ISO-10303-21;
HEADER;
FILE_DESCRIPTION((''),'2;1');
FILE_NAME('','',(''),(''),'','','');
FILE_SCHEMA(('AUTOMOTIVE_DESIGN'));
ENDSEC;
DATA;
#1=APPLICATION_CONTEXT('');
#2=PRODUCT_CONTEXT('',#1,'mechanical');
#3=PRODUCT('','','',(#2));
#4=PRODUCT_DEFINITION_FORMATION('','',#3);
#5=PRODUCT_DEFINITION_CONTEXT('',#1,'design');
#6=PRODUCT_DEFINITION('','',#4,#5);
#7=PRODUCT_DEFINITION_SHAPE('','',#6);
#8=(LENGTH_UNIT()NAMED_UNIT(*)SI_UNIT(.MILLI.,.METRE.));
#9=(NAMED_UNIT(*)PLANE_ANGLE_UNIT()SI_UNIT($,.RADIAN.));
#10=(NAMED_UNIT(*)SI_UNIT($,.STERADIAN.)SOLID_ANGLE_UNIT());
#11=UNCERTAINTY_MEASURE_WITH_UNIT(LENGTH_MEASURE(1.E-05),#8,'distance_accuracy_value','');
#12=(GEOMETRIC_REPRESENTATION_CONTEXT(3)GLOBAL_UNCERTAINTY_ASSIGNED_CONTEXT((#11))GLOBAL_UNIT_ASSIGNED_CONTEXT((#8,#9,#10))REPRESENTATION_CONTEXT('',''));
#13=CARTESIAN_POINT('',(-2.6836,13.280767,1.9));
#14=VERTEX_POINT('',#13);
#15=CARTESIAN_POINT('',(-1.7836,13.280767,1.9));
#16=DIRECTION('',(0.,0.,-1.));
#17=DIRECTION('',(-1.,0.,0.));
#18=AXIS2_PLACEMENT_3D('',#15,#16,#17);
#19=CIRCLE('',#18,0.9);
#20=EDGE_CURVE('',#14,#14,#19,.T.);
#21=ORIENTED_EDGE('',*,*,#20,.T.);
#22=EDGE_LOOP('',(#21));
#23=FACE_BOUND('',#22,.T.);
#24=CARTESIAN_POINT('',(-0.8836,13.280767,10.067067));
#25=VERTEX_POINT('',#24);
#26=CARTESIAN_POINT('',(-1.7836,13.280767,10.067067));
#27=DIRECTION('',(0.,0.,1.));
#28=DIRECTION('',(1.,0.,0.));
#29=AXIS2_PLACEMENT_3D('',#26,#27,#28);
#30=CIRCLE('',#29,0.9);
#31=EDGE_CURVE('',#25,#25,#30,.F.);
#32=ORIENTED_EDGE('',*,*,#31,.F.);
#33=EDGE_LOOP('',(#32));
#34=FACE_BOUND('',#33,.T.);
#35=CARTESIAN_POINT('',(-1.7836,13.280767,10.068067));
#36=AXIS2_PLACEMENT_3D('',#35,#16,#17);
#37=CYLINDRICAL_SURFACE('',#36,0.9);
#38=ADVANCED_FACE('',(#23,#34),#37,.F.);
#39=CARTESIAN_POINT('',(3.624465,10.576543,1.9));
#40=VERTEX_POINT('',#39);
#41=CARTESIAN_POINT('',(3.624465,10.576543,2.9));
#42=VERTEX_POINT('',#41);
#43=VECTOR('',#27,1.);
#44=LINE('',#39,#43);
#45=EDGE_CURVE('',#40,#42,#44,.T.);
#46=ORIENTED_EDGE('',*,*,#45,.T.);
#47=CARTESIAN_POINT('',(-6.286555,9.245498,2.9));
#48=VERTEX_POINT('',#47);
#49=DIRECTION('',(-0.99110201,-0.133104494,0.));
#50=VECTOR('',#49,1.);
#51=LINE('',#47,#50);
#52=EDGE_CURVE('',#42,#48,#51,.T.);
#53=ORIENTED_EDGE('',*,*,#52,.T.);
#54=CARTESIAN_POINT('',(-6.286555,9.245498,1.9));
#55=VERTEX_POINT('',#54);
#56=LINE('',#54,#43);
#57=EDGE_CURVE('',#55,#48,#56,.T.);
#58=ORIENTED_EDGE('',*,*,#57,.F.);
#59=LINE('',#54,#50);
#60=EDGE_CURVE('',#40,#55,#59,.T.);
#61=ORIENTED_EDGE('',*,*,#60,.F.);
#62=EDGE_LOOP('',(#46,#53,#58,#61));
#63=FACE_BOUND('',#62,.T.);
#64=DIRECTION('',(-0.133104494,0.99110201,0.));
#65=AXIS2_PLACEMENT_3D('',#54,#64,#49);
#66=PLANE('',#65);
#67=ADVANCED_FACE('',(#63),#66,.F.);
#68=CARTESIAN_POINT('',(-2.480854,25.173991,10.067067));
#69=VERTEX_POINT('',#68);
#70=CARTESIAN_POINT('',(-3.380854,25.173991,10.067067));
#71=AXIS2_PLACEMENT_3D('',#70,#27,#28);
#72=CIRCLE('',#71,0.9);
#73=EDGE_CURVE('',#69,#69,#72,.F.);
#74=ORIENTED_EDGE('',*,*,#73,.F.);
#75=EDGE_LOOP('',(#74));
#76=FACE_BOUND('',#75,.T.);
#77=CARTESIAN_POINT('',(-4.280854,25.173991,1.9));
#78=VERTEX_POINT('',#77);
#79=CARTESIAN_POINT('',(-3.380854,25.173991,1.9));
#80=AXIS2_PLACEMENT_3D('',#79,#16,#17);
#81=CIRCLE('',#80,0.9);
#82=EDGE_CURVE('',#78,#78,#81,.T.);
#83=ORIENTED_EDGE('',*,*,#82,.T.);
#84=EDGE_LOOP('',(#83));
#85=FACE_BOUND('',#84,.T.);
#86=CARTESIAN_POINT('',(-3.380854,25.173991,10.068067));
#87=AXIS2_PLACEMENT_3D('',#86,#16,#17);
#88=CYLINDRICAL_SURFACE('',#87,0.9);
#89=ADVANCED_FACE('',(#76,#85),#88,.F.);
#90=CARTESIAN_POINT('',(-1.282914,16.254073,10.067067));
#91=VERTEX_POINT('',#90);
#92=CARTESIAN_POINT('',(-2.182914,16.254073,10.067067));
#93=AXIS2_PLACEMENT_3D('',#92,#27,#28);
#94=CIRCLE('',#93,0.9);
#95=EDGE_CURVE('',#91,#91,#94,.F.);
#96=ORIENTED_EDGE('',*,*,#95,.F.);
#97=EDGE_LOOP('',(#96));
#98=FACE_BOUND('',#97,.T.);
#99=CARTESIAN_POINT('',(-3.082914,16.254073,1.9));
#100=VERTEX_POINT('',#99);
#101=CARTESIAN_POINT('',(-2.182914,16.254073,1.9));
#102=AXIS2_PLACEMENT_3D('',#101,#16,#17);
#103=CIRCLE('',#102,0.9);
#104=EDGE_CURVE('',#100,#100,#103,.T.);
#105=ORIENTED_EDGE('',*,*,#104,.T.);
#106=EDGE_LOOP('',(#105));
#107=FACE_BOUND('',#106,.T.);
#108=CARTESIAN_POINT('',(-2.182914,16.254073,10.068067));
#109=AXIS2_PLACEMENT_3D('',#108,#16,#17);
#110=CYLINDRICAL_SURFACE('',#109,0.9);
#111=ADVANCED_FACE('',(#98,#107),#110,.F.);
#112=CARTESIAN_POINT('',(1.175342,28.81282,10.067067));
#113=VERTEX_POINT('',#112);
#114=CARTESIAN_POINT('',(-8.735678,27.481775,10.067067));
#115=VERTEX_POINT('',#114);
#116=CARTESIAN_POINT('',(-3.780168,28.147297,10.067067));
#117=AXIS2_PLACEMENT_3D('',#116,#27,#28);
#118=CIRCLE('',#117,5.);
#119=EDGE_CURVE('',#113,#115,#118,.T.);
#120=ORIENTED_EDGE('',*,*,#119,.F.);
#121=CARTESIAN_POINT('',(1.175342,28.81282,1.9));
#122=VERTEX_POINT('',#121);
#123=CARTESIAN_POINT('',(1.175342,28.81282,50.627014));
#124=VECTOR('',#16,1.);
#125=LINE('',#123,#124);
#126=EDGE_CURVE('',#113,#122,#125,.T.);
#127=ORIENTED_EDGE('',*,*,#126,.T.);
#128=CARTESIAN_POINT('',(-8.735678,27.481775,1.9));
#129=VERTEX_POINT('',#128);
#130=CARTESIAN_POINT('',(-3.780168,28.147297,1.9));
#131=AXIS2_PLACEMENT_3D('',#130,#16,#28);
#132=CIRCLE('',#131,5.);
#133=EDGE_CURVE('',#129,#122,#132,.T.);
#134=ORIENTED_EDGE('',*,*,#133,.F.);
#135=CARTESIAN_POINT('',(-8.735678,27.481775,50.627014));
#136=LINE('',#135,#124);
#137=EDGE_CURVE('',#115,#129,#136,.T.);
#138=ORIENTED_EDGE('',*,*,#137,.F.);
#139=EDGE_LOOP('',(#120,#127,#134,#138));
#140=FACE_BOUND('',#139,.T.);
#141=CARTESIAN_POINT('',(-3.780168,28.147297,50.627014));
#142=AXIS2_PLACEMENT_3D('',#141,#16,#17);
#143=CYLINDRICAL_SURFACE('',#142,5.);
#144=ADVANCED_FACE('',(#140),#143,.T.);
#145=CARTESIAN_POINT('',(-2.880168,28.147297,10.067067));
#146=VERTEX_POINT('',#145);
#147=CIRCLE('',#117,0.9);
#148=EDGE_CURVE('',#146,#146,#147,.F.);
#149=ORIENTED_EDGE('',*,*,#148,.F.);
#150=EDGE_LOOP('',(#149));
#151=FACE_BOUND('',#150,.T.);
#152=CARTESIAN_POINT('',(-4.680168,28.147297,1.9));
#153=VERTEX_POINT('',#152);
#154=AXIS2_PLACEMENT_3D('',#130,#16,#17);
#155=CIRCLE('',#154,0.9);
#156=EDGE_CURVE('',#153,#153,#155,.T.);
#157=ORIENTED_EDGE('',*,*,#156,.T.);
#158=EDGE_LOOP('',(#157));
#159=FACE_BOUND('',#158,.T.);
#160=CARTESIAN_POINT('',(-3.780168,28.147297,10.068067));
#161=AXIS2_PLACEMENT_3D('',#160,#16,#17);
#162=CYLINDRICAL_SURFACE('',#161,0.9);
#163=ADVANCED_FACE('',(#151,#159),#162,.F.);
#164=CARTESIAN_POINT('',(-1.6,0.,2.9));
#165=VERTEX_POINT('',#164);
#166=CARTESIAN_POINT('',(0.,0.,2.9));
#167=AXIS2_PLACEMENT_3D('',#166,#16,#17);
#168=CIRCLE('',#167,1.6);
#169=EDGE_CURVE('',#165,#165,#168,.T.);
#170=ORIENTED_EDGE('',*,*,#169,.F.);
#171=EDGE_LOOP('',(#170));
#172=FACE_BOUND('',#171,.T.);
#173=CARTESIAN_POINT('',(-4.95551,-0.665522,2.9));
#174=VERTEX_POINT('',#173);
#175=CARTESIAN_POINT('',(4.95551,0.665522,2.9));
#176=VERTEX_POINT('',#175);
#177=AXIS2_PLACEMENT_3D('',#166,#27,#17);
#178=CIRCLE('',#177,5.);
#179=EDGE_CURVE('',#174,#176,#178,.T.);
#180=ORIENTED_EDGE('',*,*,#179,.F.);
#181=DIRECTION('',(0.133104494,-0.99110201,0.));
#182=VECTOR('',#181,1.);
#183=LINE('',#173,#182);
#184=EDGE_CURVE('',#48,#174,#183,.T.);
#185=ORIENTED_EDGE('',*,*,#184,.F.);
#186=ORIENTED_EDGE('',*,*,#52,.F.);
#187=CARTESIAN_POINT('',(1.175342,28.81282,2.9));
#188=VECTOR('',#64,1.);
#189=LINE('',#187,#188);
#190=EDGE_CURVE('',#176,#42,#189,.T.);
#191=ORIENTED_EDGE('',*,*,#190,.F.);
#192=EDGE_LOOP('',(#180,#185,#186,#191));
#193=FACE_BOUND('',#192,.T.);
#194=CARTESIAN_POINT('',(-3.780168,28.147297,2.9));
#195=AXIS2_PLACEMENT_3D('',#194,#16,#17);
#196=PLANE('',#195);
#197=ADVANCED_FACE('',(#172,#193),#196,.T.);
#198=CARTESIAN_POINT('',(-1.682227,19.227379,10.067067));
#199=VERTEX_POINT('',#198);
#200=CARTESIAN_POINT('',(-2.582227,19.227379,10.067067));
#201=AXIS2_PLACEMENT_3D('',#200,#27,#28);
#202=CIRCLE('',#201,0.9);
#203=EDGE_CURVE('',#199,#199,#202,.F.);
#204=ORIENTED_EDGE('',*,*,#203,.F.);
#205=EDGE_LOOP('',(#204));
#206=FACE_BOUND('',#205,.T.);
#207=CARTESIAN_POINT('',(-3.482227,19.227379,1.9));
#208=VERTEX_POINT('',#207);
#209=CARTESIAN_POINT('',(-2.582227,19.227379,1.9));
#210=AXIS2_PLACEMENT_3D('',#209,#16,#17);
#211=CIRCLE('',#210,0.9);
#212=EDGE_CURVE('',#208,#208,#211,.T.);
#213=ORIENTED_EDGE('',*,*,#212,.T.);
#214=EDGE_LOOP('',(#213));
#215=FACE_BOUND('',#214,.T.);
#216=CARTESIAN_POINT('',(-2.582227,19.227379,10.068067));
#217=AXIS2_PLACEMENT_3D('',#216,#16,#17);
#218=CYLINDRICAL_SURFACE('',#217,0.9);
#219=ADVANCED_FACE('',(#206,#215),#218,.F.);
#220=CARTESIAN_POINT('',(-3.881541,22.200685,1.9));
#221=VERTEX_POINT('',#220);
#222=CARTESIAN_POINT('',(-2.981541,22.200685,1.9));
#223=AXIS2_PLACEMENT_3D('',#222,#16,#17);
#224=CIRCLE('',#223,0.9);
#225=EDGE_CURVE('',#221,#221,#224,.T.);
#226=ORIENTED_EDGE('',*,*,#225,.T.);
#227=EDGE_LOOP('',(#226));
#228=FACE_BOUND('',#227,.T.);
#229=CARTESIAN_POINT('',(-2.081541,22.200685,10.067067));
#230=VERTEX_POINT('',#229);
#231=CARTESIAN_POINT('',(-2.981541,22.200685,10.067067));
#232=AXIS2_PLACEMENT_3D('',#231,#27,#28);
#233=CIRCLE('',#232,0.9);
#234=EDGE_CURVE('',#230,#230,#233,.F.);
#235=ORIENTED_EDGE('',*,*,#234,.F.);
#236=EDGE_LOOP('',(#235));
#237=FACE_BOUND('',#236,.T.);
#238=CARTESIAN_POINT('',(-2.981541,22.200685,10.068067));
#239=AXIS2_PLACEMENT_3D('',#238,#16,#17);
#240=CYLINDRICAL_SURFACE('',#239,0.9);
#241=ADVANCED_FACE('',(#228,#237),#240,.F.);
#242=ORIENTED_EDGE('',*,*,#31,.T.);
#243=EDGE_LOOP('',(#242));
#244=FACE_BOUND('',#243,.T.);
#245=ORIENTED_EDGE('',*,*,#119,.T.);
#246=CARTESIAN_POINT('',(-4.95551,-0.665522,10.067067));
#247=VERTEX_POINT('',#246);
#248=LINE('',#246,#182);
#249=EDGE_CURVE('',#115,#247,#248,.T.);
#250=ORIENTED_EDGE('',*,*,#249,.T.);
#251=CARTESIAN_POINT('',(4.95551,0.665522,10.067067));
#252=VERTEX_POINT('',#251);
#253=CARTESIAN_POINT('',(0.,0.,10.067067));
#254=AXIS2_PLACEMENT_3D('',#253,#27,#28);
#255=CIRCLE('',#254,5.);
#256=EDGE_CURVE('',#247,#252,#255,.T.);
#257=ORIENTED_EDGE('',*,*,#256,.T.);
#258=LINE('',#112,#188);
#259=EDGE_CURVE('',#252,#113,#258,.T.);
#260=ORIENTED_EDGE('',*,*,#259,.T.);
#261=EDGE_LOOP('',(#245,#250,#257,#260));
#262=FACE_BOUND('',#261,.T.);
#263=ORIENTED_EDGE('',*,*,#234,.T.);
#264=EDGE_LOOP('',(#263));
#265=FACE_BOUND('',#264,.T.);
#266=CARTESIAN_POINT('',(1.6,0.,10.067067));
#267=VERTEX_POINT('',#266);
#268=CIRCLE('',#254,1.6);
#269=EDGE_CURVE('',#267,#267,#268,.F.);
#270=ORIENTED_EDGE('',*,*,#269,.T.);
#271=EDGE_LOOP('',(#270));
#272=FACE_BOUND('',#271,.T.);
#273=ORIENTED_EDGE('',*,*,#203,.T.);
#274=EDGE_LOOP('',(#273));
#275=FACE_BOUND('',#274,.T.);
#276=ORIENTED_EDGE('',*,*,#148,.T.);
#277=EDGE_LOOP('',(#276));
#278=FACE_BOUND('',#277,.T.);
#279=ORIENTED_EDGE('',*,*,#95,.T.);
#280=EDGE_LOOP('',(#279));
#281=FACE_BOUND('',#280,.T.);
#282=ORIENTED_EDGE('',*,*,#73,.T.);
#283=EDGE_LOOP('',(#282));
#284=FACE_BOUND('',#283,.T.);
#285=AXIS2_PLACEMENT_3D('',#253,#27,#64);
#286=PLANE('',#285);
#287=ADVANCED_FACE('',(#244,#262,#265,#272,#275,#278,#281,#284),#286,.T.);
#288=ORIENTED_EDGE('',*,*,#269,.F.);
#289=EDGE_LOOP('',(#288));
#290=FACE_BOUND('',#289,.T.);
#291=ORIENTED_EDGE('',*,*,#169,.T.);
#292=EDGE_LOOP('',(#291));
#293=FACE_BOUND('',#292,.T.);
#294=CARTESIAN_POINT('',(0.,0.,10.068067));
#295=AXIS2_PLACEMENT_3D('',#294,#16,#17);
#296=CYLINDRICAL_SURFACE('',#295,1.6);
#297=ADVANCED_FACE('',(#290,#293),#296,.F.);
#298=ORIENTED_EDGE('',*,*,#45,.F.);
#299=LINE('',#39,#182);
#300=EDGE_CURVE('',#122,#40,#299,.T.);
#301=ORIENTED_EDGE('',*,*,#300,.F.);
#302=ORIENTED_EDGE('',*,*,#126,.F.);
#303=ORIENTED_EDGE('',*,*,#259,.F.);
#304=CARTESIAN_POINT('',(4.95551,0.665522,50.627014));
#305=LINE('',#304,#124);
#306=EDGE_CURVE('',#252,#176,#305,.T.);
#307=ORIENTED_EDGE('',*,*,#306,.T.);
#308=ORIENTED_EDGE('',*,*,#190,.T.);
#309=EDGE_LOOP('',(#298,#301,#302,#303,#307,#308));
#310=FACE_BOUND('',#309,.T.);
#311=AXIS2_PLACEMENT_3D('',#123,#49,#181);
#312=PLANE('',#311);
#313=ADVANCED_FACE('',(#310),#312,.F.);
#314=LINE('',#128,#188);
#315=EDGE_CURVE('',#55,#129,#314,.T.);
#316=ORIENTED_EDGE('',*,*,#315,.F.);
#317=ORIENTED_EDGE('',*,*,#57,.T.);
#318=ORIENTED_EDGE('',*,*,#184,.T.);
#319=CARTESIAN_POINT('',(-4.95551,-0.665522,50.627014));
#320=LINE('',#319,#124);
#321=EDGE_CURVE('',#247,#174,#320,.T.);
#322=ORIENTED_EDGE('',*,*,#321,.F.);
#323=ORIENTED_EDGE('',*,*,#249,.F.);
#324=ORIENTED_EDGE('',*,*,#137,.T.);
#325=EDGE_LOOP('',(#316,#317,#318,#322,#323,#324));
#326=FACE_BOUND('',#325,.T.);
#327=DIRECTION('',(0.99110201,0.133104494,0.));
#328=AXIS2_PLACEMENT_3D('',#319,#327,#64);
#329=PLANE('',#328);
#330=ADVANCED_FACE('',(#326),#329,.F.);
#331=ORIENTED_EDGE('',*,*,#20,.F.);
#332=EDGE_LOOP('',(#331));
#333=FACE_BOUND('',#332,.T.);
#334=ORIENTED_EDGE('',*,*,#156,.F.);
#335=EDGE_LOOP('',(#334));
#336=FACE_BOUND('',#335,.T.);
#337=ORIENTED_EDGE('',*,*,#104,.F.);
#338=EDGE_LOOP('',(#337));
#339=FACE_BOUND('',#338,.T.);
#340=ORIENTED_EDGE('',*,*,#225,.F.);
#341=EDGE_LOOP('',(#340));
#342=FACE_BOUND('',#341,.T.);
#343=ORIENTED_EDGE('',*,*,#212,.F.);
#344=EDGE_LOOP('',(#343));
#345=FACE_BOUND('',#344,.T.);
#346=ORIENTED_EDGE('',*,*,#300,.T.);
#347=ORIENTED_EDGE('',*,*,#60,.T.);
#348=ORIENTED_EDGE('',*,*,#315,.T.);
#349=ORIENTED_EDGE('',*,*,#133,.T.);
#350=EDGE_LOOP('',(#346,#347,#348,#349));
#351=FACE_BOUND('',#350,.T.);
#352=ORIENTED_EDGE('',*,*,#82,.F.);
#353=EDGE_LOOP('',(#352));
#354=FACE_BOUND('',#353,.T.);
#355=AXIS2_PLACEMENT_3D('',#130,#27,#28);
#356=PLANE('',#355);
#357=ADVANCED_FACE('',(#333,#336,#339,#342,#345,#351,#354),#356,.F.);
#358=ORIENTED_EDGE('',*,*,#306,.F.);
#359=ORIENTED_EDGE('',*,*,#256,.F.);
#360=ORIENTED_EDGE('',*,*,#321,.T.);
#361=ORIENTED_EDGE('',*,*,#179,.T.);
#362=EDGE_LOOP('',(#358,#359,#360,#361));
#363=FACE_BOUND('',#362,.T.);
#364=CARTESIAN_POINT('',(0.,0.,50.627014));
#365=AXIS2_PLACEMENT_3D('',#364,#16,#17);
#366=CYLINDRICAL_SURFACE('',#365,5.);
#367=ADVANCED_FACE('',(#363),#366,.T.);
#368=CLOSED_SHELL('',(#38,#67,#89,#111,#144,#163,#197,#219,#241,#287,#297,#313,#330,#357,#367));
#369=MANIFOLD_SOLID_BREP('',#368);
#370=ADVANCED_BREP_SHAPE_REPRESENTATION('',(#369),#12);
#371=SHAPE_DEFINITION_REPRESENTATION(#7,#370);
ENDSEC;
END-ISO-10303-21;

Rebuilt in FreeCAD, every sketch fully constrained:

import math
import FreeCAD as App
import Part
import Sketcher
from FreeCAD import Vector
Q = App.Units.Quantity

doc = App.newDocument("Part")
body = doc.addObject("PartDesign::Body", "Body")

# Sketch on XY plane
sketch1 = body.newObject("Sketcher::SketchObject", "Sketch")
sketch1.AttachmentSupport = (doc.getObject("XY_Plane"), [""])
sketch1.MapMode = "FlatFace"
sketch1.AttachmentOffset = App.Placement(Vector(0, 0, 2.9), App.Rotation())
sketch1.addGeometry(Part.LineSegment(Vector(-9, 27, 0), Vector(-5, -1, 0)), False)
sketch1.addGeometry(Part.ArcOfCircle(Part.Circle(Vector(0, 0, 0), Vector(0, 0, 1), 5), math.radians(-172), math.radians(8)), False)
sketch1.addGeometry(Part.LineSegment(Vector(5, 1, 0), Vector(1, 29, 0)), False)
sketch1.addGeometry(Part.ArcOfCircle(Part.Circle(Vector(-4, 28, 0), Vector(0, 0, 1), 5), math.radians(8), math.radians(188)), False)
sketch1.addConstraint(Sketcher.Constraint("Tangent", 0, 2, 1, 1))
sketch1.addConstraint(Sketcher.Constraint("Tangent", 1, 2, 2, 1))
sketch1.addConstraint(Sketcher.Constraint("Tangent", 2, 2, 3, 1))
sketch1.addConstraint(Sketcher.Constraint("Tangent", 3, 2, 0, 1))
sketch1.addConstraint(Sketcher.Constraint("Coincident", 1, 3, -1, 1))
sketch1.addConstraint(Sketcher.Constraint("Equal", 1, 3))
sketch1.addConstraint(Sketcher.Constraint("Radius", 1, Q("5 mm")))
sketch1.addConstraint(Sketcher.Constraint("Distance", 0, Q("28.4 mm")))
sketch1.addConstraint(Sketcher.Constraint("DistanceX", 0, 2, -1, 1, Q("4.95551 mm")))
pad1 = body.newObject("PartDesign::Pad", "Pad")
pad1.Profile = sketch1
pad1.Length = 7.167067

# Sketch on XY plane
sketch2 = body.newObject("Sketcher::SketchObject", "Sketch001")
sketch2.AttachmentSupport = (doc.getObject("XY_Plane"), [""])
sketch2.MapMode = "FlatFace"
sketch2.AttachmentOffset = App.Placement(Vector(0, 0, 2.9), App.Rotation())
sketch2.addGeometry(Part.LineSegment(Vector(1, 29, 0), Vector(4, 11, 0)), False)
sketch2.addGeometry(Part.LineSegment(Vector(4, 11, 0), Vector(-6, 9, 0)), False)
sketch2.addGeometry(Part.LineSegment(Vector(-6, 9, 0), Vector(-9, 27, 0)), False)
sketch2.addGeometry(Part.ArcOfCircle(Part.Circle(Vector(-4, 28, 0), Vector(0, 0, 1), 5), math.radians(8), math.radians(188)), False)
sketch2.addConstraint(Sketcher.Constraint("Coincident", 0, 2, 1, 1))
sketch2.addConstraint(Sketcher.Constraint("Coincident", 1, 2, 2, 1))
sketch2.addConstraint(Sketcher.Constraint("Tangent", 2, 2, 3, 2))
sketch2.addConstraint(Sketcher.Constraint("Tangent", 3, 1, 0, 1))
sketch2.addConstraint(Sketcher.Constraint("Perpendicular", 0, 1))
sketch2.addConstraint(Sketcher.Constraint("Perpendicular", 1, 2))
sketch2.addConstraint(Sketcher.Constraint("Radius", 3, Q("5 mm")))
sketch2.addConstraint(Sketcher.Constraint("Distance", 0, Q("18.4 mm")))
sketch2.addConstraint(Sketcher.Constraint("DistanceY", 1, 2, 3, 3, Q("18.901799 mm")))
sketch2.addConstraint(Sketcher.Constraint("DistanceY", -1, 1, 3, 1, Q("28.81282 mm")))
sketch2.addConstraint(Sketcher.Constraint("DistanceX", 3, 3, -1, 1, Q("3.780168 mm")))
pad2 = body.newObject("PartDesign::Pad", "Pad001")
pad2.Profile = sketch2
pad2.Length = 1
pad2.Reversed = True

# Sketch on XY plane
sketch3 = body.newObject("Sketcher::SketchObject", "Sketch002")
sketch3.AttachmentSupport = (doc.getObject("XY_Plane"), [""])
sketch3.MapMode = "FlatFace"
sketch3.AttachmentOffset = App.Placement(Vector(0, 0, 1.9), App.Rotation())
sketch3.addGeometry(Part.Circle(Vector(-3.8, 28.1, 0), Vector(0, 0, 1), 0.9), False)
sketch3.addConstraint(Sketcher.Constraint("Diameter", 0, Q("1.8 mm")))
sketch3.addConstraint(Sketcher.Constraint("DistanceX", 0, 3, -1, 1, Q("3.780168 mm")))
sketch3.addConstraint(Sketcher.Constraint("DistanceY", -1, 1, 0, 3, Q("28.147297 mm")))
pocket1 = body.newObject("PartDesign::Pocket", "Pocket")
pocket1.Profile = sketch3
pocket1.Type = "UpToFirst"
pocket1.Reversed = True

# Sketch on XY plane
sketch4 = body.newObject("Sketcher::SketchObject", "Sketch003")
sketch4.AttachmentSupport = (doc.getObject("XY_Plane"), [""])
sketch4.MapMode = "FlatFace"
sketch4.AttachmentOffset = App.Placement(Vector(0, 0, 1.9), App.Rotation())
sketch4.addGeometry(Part.Circle(Vector(-3.4, 25.2, 0), Vector(0, 0, 1), 0.9), False)
sketch4.addConstraint(Sketcher.Constraint("Diameter", 0, Q("1.8 mm")))
sketch4.addConstraint(Sketcher.Constraint("DistanceY", -1, 1, 0, 3, Q("25.173991 mm")))
sketch4.addConstraint(Sketcher.Constraint("DistanceX", 0, 3, -1, 1, Q("3.380854 mm")))
pocket2 = body.newObject("PartDesign::Pocket", "Pocket001")
pocket2.Profile = sketch4
pocket2.Type = "UpToFirst"
pocket2.Reversed = True

# Sketch on XY plane
sketch5 = body.newObject("Sketcher::SketchObject", "Sketch004")
sketch5.AttachmentSupport = (doc.getObject("XY_Plane"), [""])
sketch5.MapMode = "FlatFace"
sketch5.AttachmentOffset = App.Placement(Vector(0, 0, 1.9), App.Rotation())
sketch5.addGeometry(Part.Circle(Vector(-3, 22.2, 0), Vector(0, 0, 1), 0.9), False)
sketch5.addConstraint(Sketcher.Constraint("Diameter", 0, Q("1.8 mm")))
sketch5.addConstraint(Sketcher.Constraint("DistanceX", 0, 3, -1, 1, Q("2.981541 mm")))
sketch5.addConstraint(Sketcher.Constraint("DistanceY", -1, 1, 0, 3, Q("22.200685 mm")))
pocket3 = body.newObject("PartDesign::Pocket", "Pocket002")
pocket3.Profile = sketch5
pocket3.Type = "UpToFirst"
pocket3.Reversed = True

# Sketch on XY plane
sketch6 = body.newObject("Sketcher::SketchObject", "Sketch005")
sketch6.AttachmentSupport = (doc.getObject("XY_Plane"), [""])
sketch6.MapMode = "FlatFace"
sketch6.AttachmentOffset = App.Placement(Vector(0, 0, 1.9), App.Rotation())
sketch6.addGeometry(Part.Circle(Vector(-2.6, 19.2, 0), Vector(0, 0, 1), 0.9), False)
sketch6.addConstraint(Sketcher.Constraint("Diameter", 0, Q("1.8 mm")))
sketch6.addConstraint(Sketcher.Constraint("DistanceY", -1, 1, 0, 3, Q("19.227379 mm")))
sketch6.addConstraint(Sketcher.Constraint("DistanceX", 0, 3, -1, 1, Q("2.582227 mm")))
pocket4 = body.newObject("PartDesign::Pocket", "Pocket003")
pocket4.Profile = sketch6
pocket4.Type = "UpToFirst"
pocket4.Reversed = True

# Sketch on XY plane
sketch7 = body.newObject("Sketcher::SketchObject", "Sketch006")
sketch7.AttachmentSupport = (doc.getObject("XY_Plane"), [""])
sketch7.MapMode = "FlatFace"
sketch7.AttachmentOffset = App.Placement(Vector(0, 0, 1.9), App.Rotation())
sketch7.addGeometry(Part.Circle(Vector(-2.2, 16.3, 0), Vector(0, 0, 1), 0.9), False)
sketch7.addConstraint(Sketcher.Constraint("Diameter", 0, Q("1.8 mm")))
sketch7.addConstraint(Sketcher.Constraint("DistanceX", 0, 3, -1, 1, Q("2.182914 mm")))
sketch7.addConstraint(Sketcher.Constraint("DistanceY", -1, 1, 0, 3, Q("16.254073 mm")))
pocket5 = body.newObject("PartDesign::Pocket", "Pocket004")
pocket5.Profile = sketch7
pocket5.Type = "UpToFirst"
pocket5.Reversed = True

# Sketch on XY plane
sketch8 = body.newObject("Sketcher::SketchObject", "Sketch007")
sketch8.AttachmentSupport = (doc.getObject("XY_Plane"), [""])
sketch8.MapMode = "FlatFace"
sketch8.AttachmentOffset = App.Placement(Vector(0, 0, 1.9), App.Rotation())
sketch8.addGeometry(Part.Circle(Vector(-1.8, 13.3, 0), Vector(0, 0, 1), 0.9), False)
sketch8.addConstraint(Sketcher.Constraint("Diameter", 0, Q("1.8 mm")))
sketch8.addConstraint(Sketcher.Constraint("DistanceX", 0, 3, -1, 1, Q("1.7836 mm")))
sketch8.addConstraint(Sketcher.Constraint("DistanceY", -1, 1, 0, 3, Q("13.280767 mm")))
pocket6 = body.newObject("PartDesign::Pocket", "Pocket005")
pocket6.Profile = sketch8
pocket6.Type = "UpToFirst"
pocket6.Reversed = True

# Sketch on XY plane
sketch9 = body.newObject("Sketcher::SketchObject", "Sketch008")
sketch9.AttachmentSupport = (doc.getObject("XY_Plane"), [""])
sketch9.MapMode = "FlatFace"
sketch9.AttachmentOffset = App.Placement(Vector(0, 0, 2.9), App.Rotation())
sketch9.addGeometry(Part.Circle(Vector(0, 0, 0), Vector(0, 0, 1), 1.6), False)
sketch9.addConstraint(Sketcher.Constraint("Coincident", 0, 3, -1, 1))
sketch9.addConstraint(Sketcher.Constraint("Diameter", 0, Q("3.2 mm")))
pocket7 = body.newObject("PartDesign::Pocket", "Pocket006")
pocket7.Profile = sketch9
pocket7.Type = "UpToFirst"
pocket7.Reversed = True

doc.recompute()
